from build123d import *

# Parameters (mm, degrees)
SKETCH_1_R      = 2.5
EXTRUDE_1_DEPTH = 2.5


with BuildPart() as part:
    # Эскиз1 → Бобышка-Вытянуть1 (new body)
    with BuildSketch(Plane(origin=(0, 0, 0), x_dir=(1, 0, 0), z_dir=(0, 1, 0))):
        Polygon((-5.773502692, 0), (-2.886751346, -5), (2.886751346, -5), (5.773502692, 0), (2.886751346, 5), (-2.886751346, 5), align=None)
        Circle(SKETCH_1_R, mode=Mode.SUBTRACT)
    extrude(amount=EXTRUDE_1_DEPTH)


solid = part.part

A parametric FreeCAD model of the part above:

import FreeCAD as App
import Part
import Sketcher
Q = App.Units.Quantity


def add_polygon(sketch, points):
    """Adds a closed chain of lines whose ends are joined by coincident constraints."""
    first, n = sketch.GeometryCount, len(points)
    for a, b in zip(points, points[1:] + points[:1]):
        sketch.addGeometry(Part.LineSegment(App.Vector(*a, 0), App.Vector(*b, 0)), False)
    for i in range(n):
        sketch.addConstraint(Sketcher.Constraint("Coincident", first + i, 2, first + (i + 1) % n, 1))

doc = App.newDocument("Part")
body = doc.addObject("PartDesign::Body", "Body")

sketch1 = doc.addObject("Sketcher::SketchObject", "Sketch")
body.addObject(sketch1)
sketch1.AttachmentSupport = (doc.XZ_Plane, [""])
sketch1.MapMode = "FlatFace"
add_polygon(sketch1, [(-5.8, 0), (-2.9, 5), (2.9, 5), (5.8, 0), (2.9, -5), (-2.9, -5)])
sketch1.addGeometry(Part.Circle(App.Vector(0, 0, 0), App.Vector(0, 0, 1), 2.5), False)
sketch1.addConstraint([
    Sketcher.Constraint("Horizontal", 1),
    Sketcher.Constraint("Horizontal", 4),
    Sketcher.Constraint("Coincident", 6, 3, -1, 1),
    Sketcher.Constraint("Symmetric", 0, 2, 3, 2, -1, 1),
    Sketcher.Constraint("Symmetric", 2, 2, 5, 2, -1, 1),
    Sketcher.Constraint("PointOnObject", 2, 2, -1),
    Sketcher.Constraint("Parallel", 2, 5),
    Sketcher.Constraint("Vertical", 1, 2, 3, 2),
    Sketcher.Constraint("Diameter", 6, 5.0),
    Sketcher.Constraint("Angle", 0, Q("60 deg")),
    Sketcher.Constraint("DistanceY", -1, 1, 0, 2, 5.0),
    Sketcher.Constraint("DistanceX", 1, 1, 1, 2, 5.773503),
])
pad1 = doc.addObject("PartDesign::Pad", "Pad")
body.addObject(pad1)
pad1.Profile = sketch1
pad1.Length = 2.5
pad1.Reversed = True

doc.recompute()
